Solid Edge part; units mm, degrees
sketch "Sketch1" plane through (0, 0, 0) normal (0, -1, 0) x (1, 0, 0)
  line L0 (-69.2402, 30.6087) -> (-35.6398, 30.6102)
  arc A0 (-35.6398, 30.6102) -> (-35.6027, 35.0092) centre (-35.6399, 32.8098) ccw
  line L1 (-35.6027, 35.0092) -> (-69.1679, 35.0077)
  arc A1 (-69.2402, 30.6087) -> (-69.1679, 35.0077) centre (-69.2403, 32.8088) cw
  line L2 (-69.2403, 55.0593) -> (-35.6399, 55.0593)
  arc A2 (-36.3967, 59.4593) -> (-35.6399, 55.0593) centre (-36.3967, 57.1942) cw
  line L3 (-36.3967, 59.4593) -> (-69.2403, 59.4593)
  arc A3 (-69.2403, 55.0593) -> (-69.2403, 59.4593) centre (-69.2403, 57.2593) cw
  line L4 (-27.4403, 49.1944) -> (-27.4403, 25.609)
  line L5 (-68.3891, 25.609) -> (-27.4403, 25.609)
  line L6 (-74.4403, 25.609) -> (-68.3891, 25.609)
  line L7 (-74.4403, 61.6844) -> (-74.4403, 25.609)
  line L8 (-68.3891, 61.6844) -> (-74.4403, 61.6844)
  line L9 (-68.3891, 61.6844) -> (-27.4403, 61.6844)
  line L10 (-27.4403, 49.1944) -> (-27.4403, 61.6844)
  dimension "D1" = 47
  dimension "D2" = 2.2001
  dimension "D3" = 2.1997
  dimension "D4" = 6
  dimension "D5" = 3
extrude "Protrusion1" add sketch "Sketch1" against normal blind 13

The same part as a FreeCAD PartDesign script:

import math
import FreeCAD as App
import Part
import Sketcher
from FreeCAD import Vector
Q = App.Units.Quantity

doc = App.newDocument("Part")
body = doc.addObject("PartDesign::Body", "Body")

# Sketch on XZ plane
sketch1 = body.newObject("Sketcher::SketchObject", "Sketch")
sketch1.AttachmentSupport = (doc.getObject("XZ_Plane"), [""])
sketch1.MapMode = "FlatFace"
sketch1.addGeometry([
    Part.LineSegment(Vector(-27.4403, 25.609, 0), Vector(-27.4403, 61.6844, 0)),  # 0
    Part.LineSegment(Vector(-27.4403, 61.6844, 0), Vector(-74.4403, 61.6844, 0)),  # 1
    Part.LineSegment(Vector(-74.4403, 61.6844, 0), Vector(-74.4403, 25.609, 0)),  # 2
    Part.LineSegment(Vector(-74.4403, 25.609, 0), Vector(-27.4403, 25.609, 0)),  # 3
    Part.LineSegment(Vector(-35.6398, 30.6102, 0), Vector(-69.2402, 30.6087, 0)),  # 4
    Part.ArcOfCircle(Part.Circle(Vector(-69.2403, 32.8088, 0), Vector(0, 0, 1), 2.2001), math.radians(88.114186), math.radians(270.002604)),  # 5
    Part.LineSegment(Vector(-69.1679, 35.0077, 0), Vector(-35.6027, 35.0092, 0)),  # 6
    Part.ArcOfCircle(Part.Circle(Vector(-35.6399, 32.8098, 0), Vector(0, 0, 1), 2.1996), math.radians(-89.997395), math.radians(89.031009)),  # 7
    Part.LineSegment(Vector(-35.6399, 55.0593, 0), Vector(-69.2403, 55.0593, 0)),  # 8
    Part.ArcOfCircle(Part.Circle(Vector(-69.2403, 57.2593, 0), Vector(0, 0, 1), 2.2), math.radians(90), math.radians(270)),  # 9
    Part.LineSegment(Vector(-69.2403, 59.4593, 0), Vector(-36.3967, 59.4593, 0)),  # 10
    Part.ArcOfCircle(Part.Circle(Vector(-36.3967, 57.1942, 0), Vector(0, 0, 1), 2.2651), math.radians(-70.481109), math.radians(90)),  # 11
], False)
sketch1.addConstraint([
    Sketcher.Constraint("Coincident", 0, 2, 1, 1),
    Sketcher.Constraint("Coincident", 1, 2, 2, 1),
    Sketcher.Constraint("Coincident", 2, 2, 3, 1),
    Sketcher.Constraint("Coincident", 3, 2, 0, 1),
    Sketcher.Constraint("Coincident", 4, 2, 5, 2),
    Sketcher.Constraint("Coincident", 5, 1, 6, 1),
    Sketcher.Constraint("Coincident", 6, 2, 7, 2),
    Sketcher.Constraint("Coincident", 7, 1, 4, 1),
    Sketcher.Constraint("Coincident", 8, 2, 9, 2),
    Sketcher.Constraint("Coincident", 9, 1, 10, 1),
    Sketcher.Constraint("Coincident", 10, 2, 11, 2),
    Sketcher.Constraint("Coincident", 11, 1, 8, 1),
    Sketcher.Constraint("Vertical", 0),
    Sketcher.Constraint("Horizontal", 1),
    Sketcher.Constraint("Vertical", 2),
    Sketcher.Constraint("Horizontal", 3),
    Sketcher.Constraint("Horizontal", 8),
    Sketcher.Constraint("Horizontal", 10),
    Sketcher.Constraint("Radius", 5, Q("2.2 mm")),
    Sketcher.Constraint("Radius", 9, Q("2.2 mm")),
    Sketcher.Constraint("DistanceX", 1, 2, 1, 1, Q("47 mm")),
    Sketcher.Constraint("Radius", 11, Q("2.265 mm")),
    Sketcher.Constraint("DistanceX", 5, 3, 4, 2, Q("0 mm")),
    Sketcher.Constraint("DistanceX", 9, 3, 4, 2, Q("0 mm")),
    Sketcher.Constraint("DistanceX", 8, 2, 4, 2, Q("0 mm")),
    Sketcher.Constraint("Radius", 7, Q("2.1996 mm")),
    Sketcher.Constraint("DistanceX", 9, 3, 0, 2, Q("41.8 mm")),
    Sketcher.Constraint("DistanceX", 1, 2, 9, 1, Q("5.2 mm")),
    Sketcher.Constraint("DistanceX", 7, 3, -1, 1, Q("35.64 mm")),
    Sketcher.Constraint("DistanceX", 11, 1, -1, 1, Q("35.64 mm")),
    Sketcher.Constraint("DistanceY", 6, 2, 10, 2, Q("24.45 mm")),
    Sketcher.Constraint("DistanceX", 8, 2, 8, 1, Q("33.6004 mm")),
    Sketcher.Constraint("DistanceX", 10, 1, 10, 2, Q("32.8436 mm")),
    Sketcher.Constraint("DistanceY", 0, 1, 0, 2, Q("36.0754 mm")),
    Sketcher.Constraint("DistanceY", -1, 1, 2, 2, Q("25.609 mm")),
    Sketcher.Constraint("DistanceX", 5, 1, -1, 1, Q("69.168 mm")),
    Sketcher.Constraint("DistanceY", 5, 3, 7, 3, Q("0.001 mm")),
    Sketcher.Constraint("DistanceY", 9, 3, 0, 2, Q("4.425 mm")),
    Sketcher.Constraint("DistanceX", 11, 3, 6, 2, Q("0.794 mm")),
    Sketcher.Constraint("DistanceX", 7, 1, 6, 2, Q("0.037 mm")),
])
pad1 = body.newObject("PartDesign::Pad", "Pad")
pad1.Profile = sketch1
pad1.Length = 13
pad1.Reversed = True

doc.recompute()
